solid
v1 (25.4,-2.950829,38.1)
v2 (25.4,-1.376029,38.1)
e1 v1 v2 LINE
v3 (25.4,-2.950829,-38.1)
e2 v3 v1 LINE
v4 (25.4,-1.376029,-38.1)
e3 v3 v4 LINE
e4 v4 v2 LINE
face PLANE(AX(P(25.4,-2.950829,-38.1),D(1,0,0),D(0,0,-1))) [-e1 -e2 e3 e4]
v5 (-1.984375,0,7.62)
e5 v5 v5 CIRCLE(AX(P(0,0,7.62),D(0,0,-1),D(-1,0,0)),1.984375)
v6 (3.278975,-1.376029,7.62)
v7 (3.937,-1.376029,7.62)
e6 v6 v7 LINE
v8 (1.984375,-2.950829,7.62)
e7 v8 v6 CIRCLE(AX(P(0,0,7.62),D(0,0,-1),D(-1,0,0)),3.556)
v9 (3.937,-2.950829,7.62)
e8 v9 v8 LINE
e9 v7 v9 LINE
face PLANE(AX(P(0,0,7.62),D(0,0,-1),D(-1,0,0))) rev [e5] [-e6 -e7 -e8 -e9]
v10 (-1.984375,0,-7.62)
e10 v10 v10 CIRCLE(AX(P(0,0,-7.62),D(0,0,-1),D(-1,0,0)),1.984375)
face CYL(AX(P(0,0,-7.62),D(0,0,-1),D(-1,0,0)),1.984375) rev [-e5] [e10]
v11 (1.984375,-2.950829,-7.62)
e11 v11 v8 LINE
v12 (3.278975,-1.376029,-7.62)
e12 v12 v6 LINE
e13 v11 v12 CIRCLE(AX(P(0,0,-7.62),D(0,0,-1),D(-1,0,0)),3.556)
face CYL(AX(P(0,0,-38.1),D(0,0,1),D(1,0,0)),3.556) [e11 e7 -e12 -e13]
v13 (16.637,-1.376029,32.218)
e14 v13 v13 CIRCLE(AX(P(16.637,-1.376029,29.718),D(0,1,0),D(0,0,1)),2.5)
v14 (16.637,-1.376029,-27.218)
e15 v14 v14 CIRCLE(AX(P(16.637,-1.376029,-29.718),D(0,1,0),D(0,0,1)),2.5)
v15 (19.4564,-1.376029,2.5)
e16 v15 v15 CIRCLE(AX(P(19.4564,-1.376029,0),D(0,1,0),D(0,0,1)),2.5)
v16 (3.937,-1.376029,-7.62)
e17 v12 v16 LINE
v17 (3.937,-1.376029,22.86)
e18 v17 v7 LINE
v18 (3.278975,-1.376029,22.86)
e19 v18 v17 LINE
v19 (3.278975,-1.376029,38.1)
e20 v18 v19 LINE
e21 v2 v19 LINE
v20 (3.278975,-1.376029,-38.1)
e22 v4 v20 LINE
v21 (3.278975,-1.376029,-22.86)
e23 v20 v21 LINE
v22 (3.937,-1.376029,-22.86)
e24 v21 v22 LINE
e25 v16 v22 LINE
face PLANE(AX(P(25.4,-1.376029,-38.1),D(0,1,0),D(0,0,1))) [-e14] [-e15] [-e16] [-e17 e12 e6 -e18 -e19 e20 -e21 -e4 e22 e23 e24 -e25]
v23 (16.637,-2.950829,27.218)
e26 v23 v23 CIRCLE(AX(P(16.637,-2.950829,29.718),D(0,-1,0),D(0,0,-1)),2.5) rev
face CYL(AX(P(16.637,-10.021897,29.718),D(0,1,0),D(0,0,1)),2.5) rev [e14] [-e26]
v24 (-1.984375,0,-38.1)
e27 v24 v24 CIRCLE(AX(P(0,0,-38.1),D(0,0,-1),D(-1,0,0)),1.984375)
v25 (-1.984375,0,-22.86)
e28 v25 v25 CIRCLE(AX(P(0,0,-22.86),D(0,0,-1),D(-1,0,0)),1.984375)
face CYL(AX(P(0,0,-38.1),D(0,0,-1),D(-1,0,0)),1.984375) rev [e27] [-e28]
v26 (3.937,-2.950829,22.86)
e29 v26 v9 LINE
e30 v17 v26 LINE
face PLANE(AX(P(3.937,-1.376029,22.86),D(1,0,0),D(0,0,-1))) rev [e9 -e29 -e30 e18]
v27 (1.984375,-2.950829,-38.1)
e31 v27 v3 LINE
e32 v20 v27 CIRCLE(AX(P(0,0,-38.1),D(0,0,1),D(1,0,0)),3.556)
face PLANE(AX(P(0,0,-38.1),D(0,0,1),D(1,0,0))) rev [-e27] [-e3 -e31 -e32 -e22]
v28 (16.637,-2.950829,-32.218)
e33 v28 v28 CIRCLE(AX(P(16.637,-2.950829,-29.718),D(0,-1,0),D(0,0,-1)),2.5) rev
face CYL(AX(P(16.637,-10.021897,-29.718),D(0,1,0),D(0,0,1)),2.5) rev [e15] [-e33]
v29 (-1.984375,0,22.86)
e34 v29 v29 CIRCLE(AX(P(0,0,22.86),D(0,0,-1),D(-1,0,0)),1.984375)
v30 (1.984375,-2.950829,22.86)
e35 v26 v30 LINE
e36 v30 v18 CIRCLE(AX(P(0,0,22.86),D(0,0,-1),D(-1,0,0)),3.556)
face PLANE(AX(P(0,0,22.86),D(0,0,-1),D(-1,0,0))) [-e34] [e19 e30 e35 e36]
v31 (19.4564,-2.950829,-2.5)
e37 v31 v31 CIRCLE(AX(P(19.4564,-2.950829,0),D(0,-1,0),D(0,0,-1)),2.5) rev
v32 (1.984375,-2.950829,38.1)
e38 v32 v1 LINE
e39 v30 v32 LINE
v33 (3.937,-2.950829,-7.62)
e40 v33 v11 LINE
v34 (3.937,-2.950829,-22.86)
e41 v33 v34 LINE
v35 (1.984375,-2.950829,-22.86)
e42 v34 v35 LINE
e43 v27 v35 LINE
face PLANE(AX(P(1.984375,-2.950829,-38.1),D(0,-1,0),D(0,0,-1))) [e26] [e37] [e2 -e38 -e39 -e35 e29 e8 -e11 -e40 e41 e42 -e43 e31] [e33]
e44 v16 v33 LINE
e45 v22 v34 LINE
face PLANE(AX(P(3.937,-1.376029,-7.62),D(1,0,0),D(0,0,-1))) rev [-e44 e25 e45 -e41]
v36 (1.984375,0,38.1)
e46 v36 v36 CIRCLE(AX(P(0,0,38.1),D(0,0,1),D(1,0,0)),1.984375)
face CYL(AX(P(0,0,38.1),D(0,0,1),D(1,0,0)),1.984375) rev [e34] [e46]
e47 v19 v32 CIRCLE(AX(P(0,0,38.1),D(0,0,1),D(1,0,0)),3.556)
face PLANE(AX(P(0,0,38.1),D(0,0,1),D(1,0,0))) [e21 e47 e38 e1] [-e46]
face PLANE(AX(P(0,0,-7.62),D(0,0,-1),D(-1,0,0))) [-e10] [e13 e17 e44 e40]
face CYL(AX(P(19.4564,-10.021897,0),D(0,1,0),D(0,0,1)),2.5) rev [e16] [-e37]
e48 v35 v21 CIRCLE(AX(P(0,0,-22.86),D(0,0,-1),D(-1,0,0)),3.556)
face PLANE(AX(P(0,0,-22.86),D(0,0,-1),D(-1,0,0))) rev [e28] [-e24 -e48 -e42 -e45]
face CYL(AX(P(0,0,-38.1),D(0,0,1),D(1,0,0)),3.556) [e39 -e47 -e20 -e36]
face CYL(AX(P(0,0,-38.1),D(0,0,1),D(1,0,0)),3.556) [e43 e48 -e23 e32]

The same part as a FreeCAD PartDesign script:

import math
import FreeCAD as App
import Part
import Sketcher

V = App.Vector
Q = App.Units.Quantity


def add_polygon(sketch, points):
    """Adds a closed chain of lines whose ends are joined by coincident constraints."""
    first, n = sketch.GeometryCount, len(points)
    for a, b in zip(points, points[1:] + points[:1]):
        sketch.addGeometry(Part.LineSegment(App.Vector(*a, 0), App.Vector(*b, 0)), False)
    for i in range(n):
        sketch.addConstraint(Sketcher.Constraint("Coincident", first + i, 2, first + (i + 1) % n, 1))

doc = App.newDocument("Part")
body = doc.addObject("PartDesign::Body", "Body")

sketch1 = doc.addObject("Sketcher::SketchObject", "Sketch")
body.addObject(sketch1)
sketch1.AttachmentSupport = (doc.XY_Plane, [""])
sketch1.MapMode = "FlatFace"
sketch1.AttachmentOffset = App.Placement(V(0, 0, 1.5 * 25.4), App.Rotation())
sketch1.addGeometry([
    Part.LineSegment(V(25.4, -3, 0), V(25.4, -1.4, 0)),
    Part.LineSegment(V(25.4, -1.4, 0), V(3.3, -1.4, 0)),
    Part.ArcOfCircle(Part.Circle(V(0, 0, 0), V(0, 0, 1), 3.6), math.radians(-23), math.radians(304)),
    Part.LineSegment(V(2, -3, 0), V(25.4, -3, 0)),
], False)
sketch1.addConstraint([
    Sketcher.Constraint("Coincident", 0, 2, 1, 1),
    Sketcher.Constraint("Coincident", 1, 2, 2, 1),
    Sketcher.Constraint("Coincident", 2, 2, 3, 1),
    Sketcher.Constraint("Coincident", 3, 2, 0, 1),
    Sketcher.Constraint("Vertical", 0),
    Sketcher.Constraint("Horizontal", 1),
    Sketcher.Constraint("Horizontal", 3),
    Sketcher.Constraint("Coincident", 2, 3, -1, 1),
    Sketcher.Constraint("Radius", 2, Q("0.14 in")),
    Sketcher.Constraint("DistanceX", -1, 1, 0, 2, Q("1 in")),
    Sketcher.Constraint("DistanceX", 3, 1, 3, 2, Q("0.921875 in")),
    Sketcher.Constraint("DistanceY", 0, 1, 0, 2, Q("0.062 in")),
])
pad1 = doc.addObject("PartDesign::Pad", "Pad")
body.addObject(pad1)
pad1.Profile = sketch1
pad1.Length = Q("3 in")
pad1.Reversed = True

sketch2 = doc.addObject("Sketcher::SketchObject", "Sketch001")
body.addObject(sketch2)
sketch2.AttachmentSupport = (doc.XY_Plane, [""])
sketch2.MapMode = "FlatFace"
sketch2.AttachmentOffset = App.Placement(V(0, 0, -0.9 * 25.4), App.Rotation())
sketch2.addGeometry([
    Part.LineSegment(V(3.9, -1.4, 0), V(3.9, -3, 0)),
    Part.LineSegment(V(3.9, -3, 0), V(2, -3, 0)),
    Part.ArcOfCircle(Part.Circle(V(0, 0, 0), V(0, 0, 1), 3.6), math.radians(-23), math.radians(304)),
    Part.LineSegment(V(3.3, -1.4, 0), V(3.9, -1.4, 0)),
], False)
sketch2.addConstraint([
    Sketcher.Constraint("Coincident", 0, 2, 1, 1),
    Sketcher.Constraint("Coincident", 1, 2, 2, 2),
    Sketcher.Constraint("Coincident", 2, 1, 3, 1),
    Sketcher.Constraint("Coincident", 3, 2, 0, 1),
    Sketcher.Constraint("Vertical", 0),
    Sketcher.Constraint("Horizontal", 1),
    Sketcher.Constraint("Horizontal", 3),
    Sketcher.Constraint("Coincident", 2, 3, -1, 1),
    Sketcher.Constraint("Radius", 2, Q("0.14 in")),
    Sketcher.Constraint("DistanceY", 0, 2, 0, 1, Q("0.062 in")),
    Sketcher.Constraint("DistanceX", -1, 1, 0, 2, Q("0.155 in")),
    Sketcher.Constraint("DistanceX", -1, 1, 1, 2, Q("0.078125 in")),
])
pocket1 = doc.addObject("PartDesign::Pocket", "Pocket")
body.addObject(pocket1)
pocket1.Profile = sketch2
pocket1.Length = Q("0.6 in")
pocket1.Reversed = True

sketch3 = doc.addObject("Sketcher::SketchObject", "Sketch002")
body.addObject(sketch3)
sketch3.AttachmentSupport = (doc.XY_Plane, [""])
sketch3.MapMode = "FlatFace"
sketch3.AttachmentOffset = App.Placement(V(0, 0, 0.3 * 25.4), App.Rotation())
sketch3.addGeometry([
    Part.LineSegment(V(3.9, -1.4, 0), V(3.9, -3, 0)),
    Part.LineSegment(V(3.9, -3, 0), V(2, -3, 0)),
    Part.ArcOfCircle(Part.Circle(V(0, 0, 0), V(0, 0, 1), 3.6), math.radians(-23), math.radians(304)),
    Part.LineSegment(V(3.3, -1.4, 0), V(3.9, -1.4, 0)),
], False)
sketch3.addConstraint([
    Sketcher.Constraint("Coincident", 0, 2, 1, 1),
    Sketcher.Constraint("Coincident", 1, 2, 2, 2),
    Sketcher.Constraint("Coincident", 2, 1, 3, 1),
    Sketcher.Constraint("Coincident", 3, 2, 0, 1),
    Sketcher.Constraint("Vertical", 0),
    Sketcher.Constraint("Horizontal", 1),
    Sketcher.Constraint("Horizontal", 3),
    Sketcher.Constraint("Coincident", 2, 3, -1, 1),
    Sketcher.Constraint("Radius", 2, Q("0.14 in")),
    Sketcher.Constraint("DistanceY", 0, 2, 0, 1, Q("0.062 in")),
    Sketcher.Constraint("DistanceX", -1, 1, 0, 2, Q("0.155 in")),
    Sketcher.Constraint("DistanceX", -1, 1, 1, 2, Q("0.078125 in")),
])
pocket2 = doc.addObject("PartDesign::Pocket", "Pocket001")
body.addObject(pocket2)
pocket2.Profile = sketch3
pocket2.Length = Q("0.6 in")
pocket2.Reversed = True

sketch4 = doc.addObject("Sketcher::SketchObject", "Sketch003")
body.addObject(sketch4)
sketch4.AttachmentSupport = (doc.YZ_Plane, [""])
sketch4.MapMode = "FlatFace"
sketch4.AttachmentOffset = App.Placement(V(0, 0, 0.655 * 25.4), App.Rotation())
add_polygon(sketch4, [(-3.6, -29.7), (-1.4, -29.7), (-1.4, -27.3), (-2.2, -28), (-3.6, -28)])
sketch4.addGeometry(Part.LineSegment(V(-1.4, -29.7, 0), V(-3.6, -29.7, 0)), True)
sketch4.addConstraint([
    Sketcher.Constraint("Horizontal", 0),
    Sketcher.Constraint("Vertical", 1),
    Sketcher.Constraint("Horizontal", 3),
    Sketcher.Constraint("Vertical", 4),
    Sketcher.Constraint("Horizontal", 5),
    Sketcher.Constraint("Coincident", 5, 1, 0, 2),
    Sketcher.Constraint("Vertical", 3, 2, 5, 2),
    Sketcher.Constraint("Angle", 2, Q("-139 deg")),
    Sketcher.Constraint("DistanceY", 4, 2, 4, 1, Q("0.069 in")),
    Sketcher.Constraint("DistanceY", 0, 2, -1, 1, Q("1.17 in")),
    Sketcher.Constraint("DistanceX", 3, 2, -1, 1, Q("0.14 in")),
    Sketcher.Constraint("DistanceX", 2, 2, 1, 2, Q("0.031 in")),
    Sketcher.Constraint("DistanceX", 0, 1, 0, 2, 2.179971),
])
groove = doc.addObject("PartDesign::Groove", "Groove")
body.addObject(groove)
groove.Profile = sketch4
groove.ReferenceAxis = (sketch4, ["Axis0"])
groove.Angle = 360
doc.recompute()

linearpattern = doc.addObject("PartDesign::LinearPattern", "LinearPattern")
body.addObject(linearpattern)
linearpattern.Originals = [groove]
linearpattern.Direction = (doc.Z_Axis, [""])
linearpattern.Mode = "offset"
linearpattern.Offset = Q("2.34 in")
linearpattern.Occurrences = 2
body.Tip = linearpattern
doc.recompute()

datumline = doc.addObject("PartDesign::Line", "DatumLine")
body.addObject(datumline)
datumline.Placement = App.Placement(V(0, 0, 0), App.Rotation(V(0, 0, 1), V(0.094447701, 0, 0.995529825)))
linearpattern2 = doc.addObject("PartDesign::LinearPattern", "LinearPattern001")
body.addObject(linearpattern2)
linearpattern2.Originals = [groove]
linearpattern2.Direction = (datumline, [""])
linearpattern2.Mode = "offset"
linearpattern2.Offset = 29.851441
linearpattern2.Occurrences = 2
body.Tip = linearpattern2

sketch5 = doc.addObject("Sketcher::SketchObject", "Sketch004")
body.addObject(sketch5)
sketch5.AttachmentSupport = (doc.XY_Plane, [""])
sketch5.MapMode = "FlatFace"
sketch5.AttachmentOffset = App.Placement(V(0, 0, 1.5 * 25.4), App.Rotation())
sketch5.addGeometry(Part.Circle(V(0, 0, 0), V(0, 0, 1), 2), False)
sketch5.addConstraint([
    Sketcher.Constraint("Coincident", 0, 3, -1, 1),
    Sketcher.Constraint("Diameter", 0, Q("0.15625 in")),
])
doc.recompute()
hole = doc.addObject("PartDesign::Hole", "Hole")
body.addObject(hole)
hole.Profile = sketch5
hole.ThreadType = "None"
hole.Diameter = Q("0.15625 in")
hole.DepthType = "Dimension"
hole.Depth = Q("0.6 in")
hole.DrillPoint = "Flat"

sketch6 = doc.addObject("Sketcher::SketchObject", "Sketch005")
body.addObject(sketch6)
sketch6.AttachmentSupport = (doc.XY_Plane, [""])
sketch6.MapMode = "FlatFace"
sketch6.AttachmentOffset = App.Placement(V(0, 0, -1.5 * 25.4), App.Rotation())
sketch6.addGeometry(Part.Circle(V(0, 0, 0), V(0, 0, 1), 2), False)
sketch6.addConstraint([
    Sketcher.Constraint("Coincident", 0, 3, -1, 1),
    Sketcher.Constraint("Diameter", 0, Q("0.15625 in")),
])
doc.recompute()
hole2 = doc.addObject("PartDesign::Hole", "Hole001")
body.addObject(hole2)
hole2.Profile = sketch6
hole2.ThreadType = "None"
hole2.Diameter = Q("0.15625 in")
hole2.DepthType = "Dimension"
hole2.Depth = Q("0.6 in")
hole2.DrillPoint = "Flat"
hole2.Reversed = True

sketch7 = doc.addObject("Sketcher::SketchObject", "Sketch006")
body.addObject(sketch7)
sketch7.AttachmentSupport = (doc.XY_Plane, [""])
sketch7.MapMode = "FlatFace"
sketch7.AttachmentOffset = App.Placement(V(0, 0, -0.3 * 25.4), App.Rotation())
sketch7.addGeometry(Part.Circle(V(0, 0, 0), V(0, 0, 1), 2), False)
sketch7.addConstraint([
    Sketcher.Constraint("Coincident", 0, 3, -1, 1),
    Sketcher.Constraint("Diameter", 0, Q("0.15625 in")),
])
doc.recompute()
hole3 = doc.addObject("PartDesign::Hole", "Hole002")
body.addObject(hole3)
hole3.Profile = sketch7
hole3.ThreadType = "None"
hole3.Diameter = Q("0.15625 in")
hole3.DepthType = "Dimension"
hole3.Depth = Q("1.8 in")
hole3.DrillPoint = "Flat"
hole3.Reversed = True

sketch8 = doc.addObject("Sketcher::SketchObject", "Sketch007")
body.addObject(sketch8)
sketch8.AttachmentSupport = (doc.XZ_Plane, [""])
sketch8.MapMode = "FlatFace"
sketch8.AttachmentOffset = App.Placement(V(0, 0, 1.376029), App.Rotation())
sketch8.addGeometry([
    Part.Circle(V(16.6, -29.7, 0), V(0, 0, 1), 2.5),
    Part.Circle(V(19.5, 0, 0), V(0, 0, 1), 2.5),
    Part.Circle(V(16.6, 29.7, 0), V(0, 0, 1), 2.5),
], False)
sketch8.addConstraint([
    Sketcher.Constraint("Equal", 0, 1),
    Sketcher.Constraint("Equal", 1, 2),
    Sketcher.Constraint("Symmetric", 0, 3, 2, 3, -1),
    Sketcher.Constraint("PointOnObject", 1, 3, -1),
    Sketcher.Constraint("Diameter", 0, 5.0),
    Sketcher.Constraint("DistanceY", 0, 3, -1, 1, Q("1.17 in")),
    Sketcher.Constraint("DistanceX", -1, 1, 0, 3, Q("0.655 in")),
    Sketcher.Constraint("DistanceX", -1, 1, 1, 3, Q("0.766 in")),
])
pocket3 = doc.addObject("PartDesign::Pocket", "Pocket002")
body.addObject(pocket3)
pocket3.Profile = sketch8
pocket3.Length = Q("0.062 in")
pocket3.Reversed = True

doc.recompute()
